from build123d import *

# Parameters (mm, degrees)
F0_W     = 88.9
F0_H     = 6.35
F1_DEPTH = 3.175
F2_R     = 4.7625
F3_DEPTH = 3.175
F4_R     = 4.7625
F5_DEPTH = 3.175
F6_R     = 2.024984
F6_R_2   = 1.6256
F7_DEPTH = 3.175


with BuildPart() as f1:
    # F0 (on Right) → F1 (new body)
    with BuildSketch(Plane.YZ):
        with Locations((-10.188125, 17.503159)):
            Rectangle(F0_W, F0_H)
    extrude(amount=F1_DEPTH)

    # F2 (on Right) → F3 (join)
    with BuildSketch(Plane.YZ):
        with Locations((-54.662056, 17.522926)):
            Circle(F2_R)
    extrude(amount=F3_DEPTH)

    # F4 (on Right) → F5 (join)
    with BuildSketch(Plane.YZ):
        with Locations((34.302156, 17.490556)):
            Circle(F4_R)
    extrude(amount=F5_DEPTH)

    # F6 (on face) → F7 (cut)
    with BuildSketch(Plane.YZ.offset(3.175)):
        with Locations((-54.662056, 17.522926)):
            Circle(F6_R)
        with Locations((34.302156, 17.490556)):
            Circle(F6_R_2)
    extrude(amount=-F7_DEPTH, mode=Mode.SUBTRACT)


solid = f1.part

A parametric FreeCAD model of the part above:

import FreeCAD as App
import Part
import Sketcher
from FreeCAD import Vector
Q = App.Units.Quantity

doc = App.newDocument("Part")
body = doc.addObject("PartDesign::Body", "Body")

sketch1 = body.newObject("Sketcher::SketchObject", "Sketch")
sketch1.AttachmentSupport = (doc.getObject("YZ_Plane"), [""])
sketch1.MapMode = "FlatFace"
sketch1.addGeometry(Part.LineSegment(Vector(-55, 21, 0), Vector(-55, 14, 0)), False)
sketch1.addGeometry(Part.LineSegment(Vector(-55, 14, 0), Vector(34, 14, 0)), False)
sketch1.addGeometry(Part.LineSegment(Vector(34, 14, 0), Vector(34, 21, 0)), False)
sketch1.addGeometry(Part.LineSegment(Vector(34, 21, 0), Vector(-55, 21, 0)), False)
sketch1.addConstraint(Sketcher.Constraint("Coincident", 0, 2, 1, 1))
sketch1.addConstraint(Sketcher.Constraint("Coincident", 1, 2, 2, 1))
sketch1.addConstraint(Sketcher.Constraint("Coincident", 2, 2, 3, 1))
sketch1.addConstraint(Sketcher.Constraint("Coincident", 3, 2, 0, 1))
sketch1.addConstraint(Sketcher.Constraint("Vertical", 0))
sketch1.addConstraint(Sketcher.Constraint("Horizontal", 1))
sketch1.addConstraint(Sketcher.Constraint("Vertical", 2))
sketch1.addConstraint(Sketcher.Constraint("Horizontal", 3))
sketch1.addConstraint(Sketcher.Constraint("DistanceX", 1, 1, 1, 2, Q("3.5 in")))
sketch1.addConstraint(Sketcher.Constraint("DistanceY", 0, 2, 0, 1, Q("0.25 in")))
sketch1.addConstraint(Sketcher.Constraint("DistanceY", -1, 1, 0, 2, Q("14.328159 mm")))
sketch1.addConstraint(Sketcher.Constraint("DistanceX", 0, 2, -1, 1, Q("54.638125 mm")))
pad1 = body.newObject("PartDesign::Pad", "Pad")
pad1.Profile = sketch1
pad1.Length = Q("0.125 in")

sketch2 = body.newObject("Sketcher::SketchObject", "Sketch001")
sketch2.AttachmentSupport = (doc.getObject("YZ_Plane"), [""])
sketch2.MapMode = "FlatFace"
sketch2.addGeometry(Part.Circle(Vector(-54.7, 17.5, 0), Vector(0, 0, 1), 4.8), False)
sketch2.addConstraint(Sketcher.Constraint("Diameter", 0, Q("0.375 in")))
sketch2.addConstraint(Sketcher.Constraint("DistanceX", 0, 3, -1, 1, Q("54.662056 mm")))
sketch2.addConstraint(Sketcher.Constraint("DistanceY", -1, 1, 0, 3, Q("17.522926 mm")))
pad2 = body.newObject("PartDesign::Pad", "Pad001")
pad2.Profile = sketch2
pad2.Length = Q("0.125 in")

sketch3 = body.newObject("Sketcher::SketchObject", "Sketch002")
sketch3.AttachmentSupport = (doc.getObject("YZ_Plane"), [""])
sketch3.MapMode = "FlatFace"
sketch3.addGeometry(Part.Circle(Vector(34.3, 17.5, 0), Vector(0, 0, 1), 4.8), False)
sketch3.addConstraint(Sketcher.Constraint("Diameter", 0, Q("0.375 in")))
sketch3.addConstraint(Sketcher.Constraint("DistanceX", -1, 1, 0, 3, Q("34.302156 mm")))
sketch3.addConstraint(Sketcher.Constraint("DistanceY", -1, 1, 0, 3, Q("17.490556 mm")))
pad3 = body.newObject("PartDesign::Pad", "Pad002")
pad3.Profile = sketch3
pad3.Length = Q("0.125 in")

sketch4 = body.newObject("Sketcher::SketchObject", "Sketch003")
sketch4.AttachmentSupport = (doc.getObject("YZ_Plane"), [""])
sketch4.MapMode = "FlatFace"
sketch4.AttachmentOffset = App.Placement(Vector(0, 0, 0.125 * 25.4), App.Rotation())
sketch4.addGeometry(Part.Circle(Vector(-54.7, 17.5, 0), Vector(0, 0, 1), 2), False)
sketch4.addGeometry(Part.Circle(Vector(34.3, 17.5, 0), Vector(0, 0, 1), 1.6), False)
sketch4.addConstraint(Sketcher.Constraint("Diameter", 1, Q("0.128 in")))
sketch4.addConstraint(Sketcher.Constraint("Diameter", 0, Q("4.049968 mm")))
sketch4.addConstraint(Sketcher.Constraint("DistanceY", 1, 3, 0, 3, Q("0.03237 mm")))
sketch4.addConstraint(Sketcher.Constraint("DistanceX", 0, 3, -1, 1, Q("54.662056 mm")))
sketch4.addConstraint(Sketcher.Constraint("DistanceY", -1, 1, 0, 3, Q("17.522926 mm")))
sketch4.addConstraint(Sketcher.Constraint("DistanceX", -1, 1, 1, 3, Q("34.302156 mm")))
pocket1 = body.newObject("PartDesign::Pocket", "Pocket")
pocket1.Profile = sketch4
pocket1.Length = Q("0.125 in")

doc.recompute()
